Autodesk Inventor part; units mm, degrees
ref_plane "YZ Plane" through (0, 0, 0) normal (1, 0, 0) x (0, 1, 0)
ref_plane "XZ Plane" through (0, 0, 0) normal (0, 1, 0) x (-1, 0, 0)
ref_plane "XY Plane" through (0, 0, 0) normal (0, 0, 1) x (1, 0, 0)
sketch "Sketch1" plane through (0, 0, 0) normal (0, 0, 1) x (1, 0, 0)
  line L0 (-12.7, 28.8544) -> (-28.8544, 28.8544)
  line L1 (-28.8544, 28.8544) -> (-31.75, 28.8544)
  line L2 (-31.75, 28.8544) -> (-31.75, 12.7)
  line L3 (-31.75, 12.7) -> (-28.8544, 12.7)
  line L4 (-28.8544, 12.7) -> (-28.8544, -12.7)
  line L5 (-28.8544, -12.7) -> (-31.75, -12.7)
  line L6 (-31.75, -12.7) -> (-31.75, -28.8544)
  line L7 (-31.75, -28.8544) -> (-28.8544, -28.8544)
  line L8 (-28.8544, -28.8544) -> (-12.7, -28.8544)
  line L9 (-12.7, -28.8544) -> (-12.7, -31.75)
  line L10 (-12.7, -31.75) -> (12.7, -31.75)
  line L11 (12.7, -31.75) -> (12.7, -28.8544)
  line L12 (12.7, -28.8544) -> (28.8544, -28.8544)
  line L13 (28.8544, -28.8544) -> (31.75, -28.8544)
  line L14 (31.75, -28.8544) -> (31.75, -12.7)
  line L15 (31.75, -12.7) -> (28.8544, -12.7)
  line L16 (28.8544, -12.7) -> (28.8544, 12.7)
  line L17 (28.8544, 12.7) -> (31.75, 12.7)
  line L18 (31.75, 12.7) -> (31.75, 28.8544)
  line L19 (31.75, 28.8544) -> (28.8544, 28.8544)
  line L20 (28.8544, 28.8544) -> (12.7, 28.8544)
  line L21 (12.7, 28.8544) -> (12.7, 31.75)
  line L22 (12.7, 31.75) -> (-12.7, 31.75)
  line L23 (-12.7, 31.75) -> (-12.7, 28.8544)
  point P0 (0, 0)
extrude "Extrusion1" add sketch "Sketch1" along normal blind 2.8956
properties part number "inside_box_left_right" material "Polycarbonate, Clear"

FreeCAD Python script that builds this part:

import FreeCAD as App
import Part
import Sketcher

V = App.Vector
Q = App.Units.Quantity


def add_polygon(sketch, points):
    """Adds a closed chain of lines whose ends are joined by coincident constraints."""
    first, n = sketch.GeometryCount, len(points)
    for a, b in zip(points, points[1:] + points[:1]):
        sketch.addGeometry(Part.LineSegment(App.Vector(*a, 0), App.Vector(*b, 0)), False)
    for i in range(n):
        sketch.addConstraint(Sketcher.Constraint("Coincident", first + i, 2, first + (i + 1) % n, 1))

doc = App.newDocument("Part")
params = doc.addObject("Spreadsheet::Sheet", "Params")
for row, (alias, value) in enumerate([
    ("sketch1_width", "1 in"),
    ("sketch1_width2", "0.75 in"),
    ("sketch1_width3", "0.114 in"),
    ("sketch1_height", "0.636 in"),
    ("pad1_length", "0.114 in"),
], start=1):
    params.set(f"A{row}", alias)
    params.set(f"B{row}", "=" + value)
    params.setAlias(f"B{row}", alias)

body = doc.addObject("PartDesign::Body", "Body")

sketch1 = body.newObject("Sketcher::SketchObject", "Sketch")
sketch1.AttachmentSupport = (doc.getObject("XY_Plane"), [""])
sketch1.MapMode = "FlatFace"
add_polygon(sketch1, [(-12.7, 31.8), (-12.7, 28.9), (-31.8, 28.9), (-31.8, 12.7), (-28.9, 12.7), (-28.9, -12.7), (-31.8, -12.7), (-31.8, -28.9), (-12.7, -28.9), (-12.7, -31.8), (12.7, -31.8), (12.7, -28.9), (31.8, -28.9), (31.8, -12.7), (28.9, -12.7), (28.9, 12.7), (31.8, 12.7), (31.8, 28.9), (12.7, 28.9), (12.7, 31.8)])
sketch1.addConstraint([
    Sketcher.Constraint("Vertical", 0),
    Sketcher.Constraint("Horizontal", 1),
    Sketcher.Constraint("Vertical", 2),
    Sketcher.Constraint("Horizontal", 3),
    Sketcher.Constraint("Vertical", 4),
    Sketcher.Constraint("Horizontal", 5),
    Sketcher.Constraint("Vertical", 6),
    Sketcher.Constraint("Horizontal", 7),
    Sketcher.Constraint("Vertical", 8),
    Sketcher.Constraint("Horizontal", 9),
    Sketcher.Constraint("Vertical", 10),
    Sketcher.Constraint("Horizontal", 11),
    Sketcher.Constraint("Vertical", 12),
    Sketcher.Constraint("Horizontal", 13),
    Sketcher.Constraint("Vertical", 14),
    Sketcher.Constraint("Horizontal", 15),
    Sketcher.Constraint("Vertical", 16),
    Sketcher.Constraint("Horizontal", 17),
    Sketcher.Constraint("Vertical", 18),
    Sketcher.Constraint("Horizontal", 19),
    Sketcher.Constraint("Symmetric", 0, 2, 10, 2, -1, 1),
    Sketcher.Constraint("Symmetric", 2, 2, 12, 2, -1, 1),
    Sketcher.Constraint("Symmetric", 4, 2, 14, 2, -1, 1),
    Sketcher.Constraint("Symmetric", 6, 2, 16, 2, -1, 1),
    Sketcher.Constraint("Symmetric", 8, 2, 18, 2, -1, 1),
    Sketcher.Constraint("Symmetric", 7, 2, 10, 2, -2),
    Sketcher.Constraint("Symmetric", 5, 2, 12, 2, -2),
    Sketcher.Constraint("Equal", 15, 0),
    Sketcher.Constraint("Equal", 19, 4),
    Sketcher.Constraint("DistanceX", 9, 1, 9, 2, Q("1 in")),
    Sketcher.Constraint("DistanceX", 1, 2, 1, 1, Q("0.75 in")),
    Sketcher.Constraint("DistanceX", 3, 1, 3, 2, Q("0.114 in")),
    Sketcher.Constraint("DistanceY", 2, 2, 2, 1, Q("0.636 in")),
])
sketch1.setExpression("Constraints[49]", "Params.sketch1_width")
sketch1.setExpression("Constraints[50]", "Params.sketch1_width2")
sketch1.setExpression("Constraints[51]", "Params.sketch1_width3")
sketch1.setExpression("Constraints[52]", "Params.sketch1_height")
pad1 = body.newObject("PartDesign::Pad", "Pad")
pad1.Profile = sketch1
pad1.setExpression("Length", "Params.pad1_length")

doc.recompute()
